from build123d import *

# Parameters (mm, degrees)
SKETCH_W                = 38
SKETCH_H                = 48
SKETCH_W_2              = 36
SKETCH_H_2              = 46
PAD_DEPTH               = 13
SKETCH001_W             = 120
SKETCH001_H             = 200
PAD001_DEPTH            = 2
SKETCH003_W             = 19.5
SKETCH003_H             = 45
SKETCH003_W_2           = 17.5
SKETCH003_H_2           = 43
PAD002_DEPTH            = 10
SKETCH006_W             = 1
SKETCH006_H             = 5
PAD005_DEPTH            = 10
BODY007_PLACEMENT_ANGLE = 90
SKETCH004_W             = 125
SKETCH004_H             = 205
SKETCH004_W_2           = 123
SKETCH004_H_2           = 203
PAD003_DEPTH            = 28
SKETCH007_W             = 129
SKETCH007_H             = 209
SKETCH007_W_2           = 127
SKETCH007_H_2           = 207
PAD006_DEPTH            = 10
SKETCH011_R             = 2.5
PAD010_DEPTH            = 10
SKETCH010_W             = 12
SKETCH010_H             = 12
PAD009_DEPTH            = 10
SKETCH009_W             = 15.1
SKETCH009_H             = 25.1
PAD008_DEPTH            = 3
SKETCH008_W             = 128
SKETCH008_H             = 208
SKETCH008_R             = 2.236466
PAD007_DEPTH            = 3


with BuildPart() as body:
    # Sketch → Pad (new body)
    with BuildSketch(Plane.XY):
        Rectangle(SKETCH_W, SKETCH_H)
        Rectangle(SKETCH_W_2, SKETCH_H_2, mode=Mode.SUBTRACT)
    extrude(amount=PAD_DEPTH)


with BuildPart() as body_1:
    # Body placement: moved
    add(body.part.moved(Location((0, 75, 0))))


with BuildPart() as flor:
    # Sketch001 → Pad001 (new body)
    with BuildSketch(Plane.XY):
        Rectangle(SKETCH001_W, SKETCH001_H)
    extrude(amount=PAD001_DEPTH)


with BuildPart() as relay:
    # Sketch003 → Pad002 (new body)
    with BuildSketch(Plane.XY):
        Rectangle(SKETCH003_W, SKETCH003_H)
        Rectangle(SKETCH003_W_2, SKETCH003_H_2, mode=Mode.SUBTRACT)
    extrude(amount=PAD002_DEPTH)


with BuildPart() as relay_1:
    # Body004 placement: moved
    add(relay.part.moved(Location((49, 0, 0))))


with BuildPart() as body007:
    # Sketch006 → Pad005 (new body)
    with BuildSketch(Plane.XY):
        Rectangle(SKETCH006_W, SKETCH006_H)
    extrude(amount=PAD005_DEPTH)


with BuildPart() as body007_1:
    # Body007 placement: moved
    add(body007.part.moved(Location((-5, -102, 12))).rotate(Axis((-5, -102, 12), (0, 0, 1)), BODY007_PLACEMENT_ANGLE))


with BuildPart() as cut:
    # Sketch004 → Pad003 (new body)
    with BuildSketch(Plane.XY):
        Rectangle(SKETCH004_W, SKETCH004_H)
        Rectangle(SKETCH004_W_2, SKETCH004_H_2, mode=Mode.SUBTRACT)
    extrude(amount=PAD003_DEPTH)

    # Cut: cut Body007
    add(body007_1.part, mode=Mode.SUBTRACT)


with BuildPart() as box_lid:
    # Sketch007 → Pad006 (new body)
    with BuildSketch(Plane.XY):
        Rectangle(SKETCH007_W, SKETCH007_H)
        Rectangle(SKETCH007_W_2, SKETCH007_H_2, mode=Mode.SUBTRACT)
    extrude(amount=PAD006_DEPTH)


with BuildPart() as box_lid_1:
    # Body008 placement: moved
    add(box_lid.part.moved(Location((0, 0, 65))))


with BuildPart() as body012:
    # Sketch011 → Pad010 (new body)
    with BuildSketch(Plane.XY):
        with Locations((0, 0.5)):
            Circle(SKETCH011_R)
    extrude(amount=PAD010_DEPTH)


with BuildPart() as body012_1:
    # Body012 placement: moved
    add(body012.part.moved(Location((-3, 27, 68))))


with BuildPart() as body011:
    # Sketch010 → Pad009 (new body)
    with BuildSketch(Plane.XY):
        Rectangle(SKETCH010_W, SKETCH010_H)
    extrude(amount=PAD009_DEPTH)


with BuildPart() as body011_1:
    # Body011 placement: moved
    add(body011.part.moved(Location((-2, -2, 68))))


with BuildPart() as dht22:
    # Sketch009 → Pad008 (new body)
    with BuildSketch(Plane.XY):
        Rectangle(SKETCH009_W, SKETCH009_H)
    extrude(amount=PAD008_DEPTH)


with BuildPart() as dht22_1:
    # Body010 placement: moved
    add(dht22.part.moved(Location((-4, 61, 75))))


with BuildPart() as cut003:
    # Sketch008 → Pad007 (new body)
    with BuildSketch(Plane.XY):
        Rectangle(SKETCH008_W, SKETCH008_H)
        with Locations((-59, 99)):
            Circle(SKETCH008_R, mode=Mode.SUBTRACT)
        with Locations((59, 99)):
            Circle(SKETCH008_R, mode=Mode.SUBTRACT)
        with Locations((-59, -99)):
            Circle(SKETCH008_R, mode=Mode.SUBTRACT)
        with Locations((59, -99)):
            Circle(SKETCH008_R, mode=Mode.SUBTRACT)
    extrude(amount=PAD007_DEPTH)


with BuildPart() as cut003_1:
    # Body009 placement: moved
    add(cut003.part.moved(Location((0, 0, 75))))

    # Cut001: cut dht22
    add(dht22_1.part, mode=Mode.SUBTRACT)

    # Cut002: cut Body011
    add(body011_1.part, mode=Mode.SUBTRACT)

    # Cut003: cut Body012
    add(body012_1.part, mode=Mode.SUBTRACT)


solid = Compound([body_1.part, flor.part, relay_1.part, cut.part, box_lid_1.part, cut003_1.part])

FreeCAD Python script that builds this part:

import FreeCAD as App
import Part
import Sketcher
from FreeCAD import Vector

doc = App.newDocument("Part")
params = doc.addObject("Spreadsheet::Sheet", "Params")
for row, (alias, value) in enumerate([
    ("sketch1_width", "38 mm"),
    ("sketch1_width2", "36 mm"),
    ("sketch1_height", "48 mm"),
    ("sketch1_height2", "46 mm"),
    ("pad1_length", "13 mm"),
    ("sketch2_width", "120 mm"),
    ("sketch2_height", "200 mm"),
    ("pad2_length", "2 mm"),
    ("sketch3_height", "45 mm"),
    ("sketch3_height2", "43 mm"),
    ("sketch3_width", "19.5 mm"),
    ("sketch3_width2", "17.5 mm"),
    ("pad3_length", "10 mm"),
    ("sketch4_width", "1 mm"),
    ("sketch4_height", "5 mm"),
    ("pad4_length", "10 mm"),
    ("sketch5_width", "125 mm"),
    ("sketch5_width2", "123 mm"),
    ("sketch5_height", "205 mm"),
    ("sketch5_height2", "203 mm"),
    ("pad5_length", "28 mm"),
    ("sketch6_width", "129 mm"),
    ("sketch6_width2", "127 mm"),
    ("sketch6_height", "209 mm"),
    ("sketch6_height2", "207 mm"),
    ("pad6_length", "10 mm"),
    ("sketch7_diameter", "5 mm"),
    ("pad7_length", "10 mm"),
    ("sketch8_width", "12 mm"),
    ("pad8_length", "10 mm"),
    ("sketch9_width", "15.1 mm"),
    ("sketch9_height", "25.1 mm"),
    ("pad9_length", "3 mm"),
    ("sketch10_width", "128 mm"),
    ("sketch10_height", "208 mm"),
    ("pad10_length", "3 mm"),
], start=1):
    params.set(f"A{row}", alias)
    params.set(f"B{row}", "=" + value)
    params.setAlias(f"B{row}", alias)

body = doc.addObject("PartDesign::Body", "Body")

sketch1 = body.newObject("Sketcher::SketchObject", "Sketch")
sketch1.AttachmentSupport = (doc.getObject("XY_Plane"), [""])
sketch1.MapMode = "FlatFace"
sketch1.addGeometry([
    Part.LineSegment(Vector(-19, 24, 0), Vector(-19, -24, 0)),
    Part.LineSegment(Vector(-19, -24, 0), Vector(19, -24, 0)),
    Part.LineSegment(Vector(19, -24, 0), Vector(19, 24, 0)),
    Part.LineSegment(Vector(19, 24, 0), Vector(-19, 24, 0)),
    Part.LineSegment(Vector(18, -23, 0), Vector(-18, -23, 0)),
    Part.LineSegment(Vector(-18, -23, 0), Vector(-18, 23, 0)),
    Part.LineSegment(Vector(-18, 23, 0), Vector(18, 23, 0)),
    Part.LineSegment(Vector(18, 23, 0), Vector(18, -23, 0)),
], False)
sketch1.addConstraint([
    Sketcher.Constraint("Coincident", 0, 2, 1, 1),
    Sketcher.Constraint("Coincident", 1, 2, 2, 1),
    Sketcher.Constraint("Coincident", 2, 2, 3, 1),
    Sketcher.Constraint("Coincident", 3, 2, 0, 1),
    Sketcher.Constraint("Coincident", 4, 2, 5, 1),
    Sketcher.Constraint("Coincident", 5, 2, 6, 1),
    Sketcher.Constraint("Coincident", 6, 2, 7, 1),
    Sketcher.Constraint("Coincident", 7, 2, 4, 1),
    Sketcher.Constraint("Vertical", 0),
    Sketcher.Constraint("Horizontal", 1),
    Sketcher.Constraint("Vertical", 2),
    Sketcher.Constraint("Horizontal", 3),
    Sketcher.Constraint("Horizontal", 4),
    Sketcher.Constraint("Vertical", 5),
    Sketcher.Constraint("Horizontal", 6),
    Sketcher.Constraint("Vertical", 7),
    Sketcher.Constraint("Symmetric", 0, 2, 2, 2, -1, 1),
    Sketcher.Constraint("Symmetric", 4, 2, 6, 2, -1, 1),
    Sketcher.Constraint("DistanceX", 1, 1, 1, 2, 38.0),
    Sketcher.Constraint("DistanceX", 4, 2, 4, 1, 36.0),
    Sketcher.Constraint("DistanceY", 0, 2, 0, 1, 48.0),
    Sketcher.Constraint("DistanceY", 5, 1, 5, 2, 46.0),
])
sketch1.setExpression("Constraints[18]", "Params.sketch1_width")
sketch1.setExpression("Constraints[19]", "Params.sketch1_width2")
sketch1.setExpression("Constraints[20]", "Params.sketch1_height")
sketch1.setExpression("Constraints[21]", "Params.sketch1_height2")
pad1 = body.newObject("PartDesign::Pad", "Pad")
pad1.Profile = sketch1
pad1.setExpression("Length", "Params.pad1_length")
body2 = doc.addObject("PartDesign::Body", "Body001")
doc.recompute()

body.Placement = App.Placement(Vector(0, 75, 0), App.Rotation(Vector(0, 0, 1), 0))
boolean = body2.newObject("PartDesign::Boolean", "Boolean")
boolean.Type = "Fuse"
boolean.addObjects([body])
body3 = doc.addObject("PartDesign::Body", "Body002")

sketch2 = body3.newObject("Sketcher::SketchObject", "Sketch001")
sketch2.AttachmentSupport = (doc.getObject("XY_Plane002"), [""])
sketch2.MapMode = "FlatFace"
sketch2.addGeometry([
    Part.LineSegment(Vector(-60, 100, 0), Vector(-60, -100, 0)),
    Part.LineSegment(Vector(-60, -100, 0), Vector(60, -100, 0)),
    Part.LineSegment(Vector(60, -100, 0), Vector(60, 100, 0)),
    Part.LineSegment(Vector(60, 100, 0), Vector(-60, 100, 0)),
], False)
sketch2.addConstraint([
    Sketcher.Constraint("Coincident", 0, 2, 1, 1),
    Sketcher.Constraint("Coincident", 1, 2, 2, 1),
    Sketcher.Constraint("Coincident", 2, 2, 3, 1),
    Sketcher.Constraint("Coincident", 3, 2, 0, 1),
    Sketcher.Constraint("Vertical", 0),
    Sketcher.Constraint("Horizontal", 1),
    Sketcher.Constraint("Vertical", 2),
    Sketcher.Constraint("Horizontal", 3),
    Sketcher.Constraint("Symmetric", 0, 2, 2, 2, -1, 1),
    Sketcher.Constraint("DistanceX", 1, 1, 1, 2, 120.0),
    Sketcher.Constraint("DistanceY", 0, 2, 0, 1, 200.0),
])
sketch2.setExpression("Constraints[9]", "Params.sketch2_width")
sketch2.setExpression("Constraints[10]", "Params.sketch2_height")
pad2 = body3.newObject("PartDesign::Pad", "Pad001")
pad2.Profile = sketch2
pad2.setExpression("Length", "Params.pad2_length")
body4 = doc.addObject("PartDesign::Body", "Body003")

sketch3 = body4.newObject("Sketcher::SketchObject", "Sketch002")
sketch3.AttachmentSupport = (doc.getObject("XY_Plane003"), [""])
sketch3.MapMode = "FlatFace"
sketch3.addGeometry([
    Part.LineSegment(Vector(-9.75, 22.5, 0), Vector(-9.75, -22.5, 0)),
    Part.LineSegment(Vector(-9.75, -22.5, 0), Vector(9.75, -22.5, 0)),
    Part.LineSegment(Vector(9.75, -22.5, 0), Vector(9.75, 22.5, 0)),
    Part.LineSegment(Vector(9.75, 22.5, 0), Vector(-9.75, 22.5, 0)),
    Part.LineSegment(Vector(8.75, -21.5, 0), Vector(-8.75, -21.5, 0)),
    Part.LineSegment(Vector(-8.75, -21.5, 0), Vector(-8.75, 21.5, 0)),
    Part.LineSegment(Vector(-8.75, 21.5, 0), Vector(8.75, 21.5, 0)),
    Part.LineSegment(Vector(8.75, 21.5, 0), Vector(8.75, -21.5, 0)),
], False)
sketch3.addConstraint([
    Sketcher.Constraint("Coincident", 0, 2, 1, 1),
    Sketcher.Constraint("Coincident", 1, 2, 2, 1),
    Sketcher.Constraint("Coincident", 2, 2, 3, 1),
    Sketcher.Constraint("Coincident", 3, 2, 0, 1),
    Sketcher.Constraint("Coincident", 4, 2, 5, 1),
    Sketcher.Constraint("Coincident", 5, 2, 6, 1),
    Sketcher.Constraint("Coincident", 6, 2, 7, 1),
    Sketcher.Constraint("Coincident", 7, 2, 4, 1),
    Sketcher.Constraint("Vertical", 0),
    Sketcher.Constraint("Horizontal", 1),
    Sketcher.Constraint("Vertical", 2),
    Sketcher.Constraint("Horizontal", 3),
    Sketcher.Constraint("Horizontal", 4),
    Sketcher.Constraint("Vertical", 5),
    Sketcher.Constraint("Horizontal", 6),
    Sketcher.Constraint("Vertical", 7),
    Sketcher.Constraint("Symmetric", 0, 2, 2, 2, -1, 1),
    Sketcher.Constraint("Symmetric", 4, 2, 6, 2, -1, 1),
    Sketcher.Constraint("DistanceY", 0, 2, 0, 1, 45.0),
    Sketcher.Constraint("DistanceY", 5, 1, 5, 2, 43.0),
    Sketcher.Constraint("DistanceX", 1, 1, 1, 2, 19.5),
    Sketcher.Constraint("DistanceX", 4, 2, 4, 1, 17.5),
])
sketch3.setExpression("Constraints[18]", "Params.sketch3_height")
sketch3.setExpression("Constraints[19]", "Params.sketch3_height2")
sketch3.setExpression("Constraints[20]", "Params.sketch3_width")
sketch3.setExpression("Constraints[21]", "Params.sketch3_width2")
pad3 = body4.newObject("PartDesign::Pad", "Pad002")
pad3.Profile = sketch3
pad3.setExpression("Length", "Params.pad3_length")
body5 = doc.addObject("PartDesign::Body", "Body004")
doc.recompute()

body4.Placement = App.Placement(Vector(49, 0, 0), App.Rotation(Vector(0, 0, 1), 0))
boolean2 = body5.newObject("PartDesign::Boolean", "Boolean001")
boolean2.Type = "Fuse"
boolean2.addObjects([body4])
body6 = doc.addObject("PartDesign::Body", "Body005")

sketch4 = body6.newObject("Sketcher::SketchObject", "Sketch003")
sketch4.AttachmentSupport = (doc.getObject("XY_Plane005"), [""])
sketch4.MapMode = "FlatFace"
sketch4.addGeometry([
    Part.LineSegment(Vector(-0.5, 2.5, 0), Vector(-0.5, -2.5, 0)),
    Part.LineSegment(Vector(-0.5, -2.5, 0), Vector(0.5, -2.5, 0)),
    Part.LineSegment(Vector(0.5, -2.5, 0), Vector(0.5, 2.5, 0)),
    Part.LineSegment(Vector(0.5, 2.5, 0), Vector(-0.5, 2.5, 0)),
], False)
sketch4.addConstraint([
    Sketcher.Constraint("Coincident", 0, 2, 1, 1),
    Sketcher.Constraint("Coincident", 1, 2, 2, 1),
    Sketcher.Constraint("Coincident", 2, 2, 3, 1),
    Sketcher.Constraint("Coincident", 3, 2, 0, 1),
    Sketcher.Constraint("Vertical", 0),
    Sketcher.Constraint("Horizontal", 1),
    Sketcher.Constraint("Vertical", 2),
    Sketcher.Constraint("Horizontal", 3),
    Sketcher.Constraint("Symmetric", 0, 2, 2, 2, -1, 1),
    Sketcher.Constraint("DistanceX", 1, 1, 1, 2, 1.0),
    Sketcher.Constraint("DistanceY", 0, 2, 0, 1, 5.0),
])
sketch4.setExpression("Constraints[9]", "Params.sketch4_width")
sketch4.setExpression("Constraints[10]", "Params.sketch4_height")
pad4 = body6.newObject("PartDesign::Pad", "Pad003")
pad4.Profile = sketch4
pad4.setExpression("Length", "Params.pad4_length")
body7 = doc.addObject("PartDesign::Body", "Body006")
doc.recompute()

body6.Placement = App.Placement(Vector(-5, -102, 12), App.Rotation(Vector(0, 0, 1), 90))
boolean3 = body7.newObject("PartDesign::Boolean", "Boolean002")
boolean3.Type = "Fuse"
boolean3.addObjects([body6])
body8 = doc.addObject("PartDesign::Body", "Body007")

sketch5 = body8.newObject("Sketcher::SketchObject", "Sketch004")
sketch5.AttachmentSupport = (doc.getObject("XY_Plane007"), [""])
sketch5.MapMode = "FlatFace"
sketch5.addGeometry([
    Part.LineSegment(Vector(-62.5, 102.5, 0), Vector(-62.5, -102.5, 0)),
    Part.LineSegment(Vector(-62.5, -102.5, 0), Vector(62.5, -102.5, 0)),
    Part.LineSegment(Vector(62.5, -102.5, 0), Vector(62.5, 102.5, 0)),
    Part.LineSegment(Vector(62.5, 102.5, 0), Vector(-62.5, 102.5, 0)),
    Part.LineSegment(Vector(61.5, -101.5, 0), Vector(-61.5, -101.5, 0)),
    Part.LineSegment(Vector(-61.5, -101.5, 0), Vector(-61.5, 101.5, 0)),
    Part.LineSegment(Vector(-61.5, 101.5, 0), Vector(61.5, 101.5, 0)),
    Part.LineSegment(Vector(61.5, 101.5, 0), Vector(61.5, -101.5, 0)),
], False)
sketch5.addConstraint([
    Sketcher.Constraint("Coincident", 0, 2, 1, 1),
    Sketcher.Constraint("Coincident", 1, 2, 2, 1),
    Sketcher.Constraint("Coincident", 2, 2, 3, 1),
    Sketcher.Constraint("Coincident", 3, 2, 0, 1),
    Sketcher.Constraint("Coincident", 4, 2, 5, 1),
    Sketcher.Constraint("Coincident", 5, 2, 6, 1),
    Sketcher.Constraint("Coincident", 6, 2, 7, 1),
    Sketcher.Constraint("Coincident", 7, 2, 4, 1),
    Sketcher.Constraint("Vertical", 0),
    Sketcher.Constraint("Horizontal", 1),
    Sketcher.Constraint("Vertical", 2),
    Sketcher.Constraint("Horizontal", 3),
    Sketcher.Constraint("Horizontal", 4),
    Sketcher.Constraint("Vertical", 5),
    Sketcher.Constraint("Horizontal", 6),
    Sketcher.Constraint("Vertical", 7),
    Sketcher.Constraint("Symmetric", 0, 2, 2, 2, -1, 1),
    Sketcher.Constraint("Symmetric", 4, 2, 6, 2, -1, 1),
    Sketcher.Constraint("DistanceX", 1, 1, 1, 2, 125.0),
    Sketcher.Constraint("DistanceX", 4, 2, 4, 1, 123.0),
    Sketcher.Constraint("DistanceY", 0, 2, 0, 1, 205.0),
    Sketcher.Constraint("DistanceY", 5, 1, 5, 2, 203.0),
])
sketch5.setExpression("Constraints[18]", "Params.sketch5_width")
sketch5.setExpression("Constraints[19]", "Params.sketch5_width2")
sketch5.setExpression("Constraints[20]", "Params.sketch5_height")
sketch5.setExpression("Constraints[21]", "Params.sketch5_height2")
pad5 = body8.newObject("PartDesign::Pad", "Pad004")
pad5.Profile = sketch5
pad5.setExpression("Length", "Params.pad5_length")
doc.recompute()

boolean4 = body8.newObject("PartDesign::Boolean", "Boolean003")
boolean4.Type = "Cut"
boolean4.addObjects([body7])
body9 = doc.addObject("PartDesign::Body", "Body008")

sketch6 = body9.newObject("Sketcher::SketchObject", "Sketch005")
sketch6.AttachmentSupport = (doc.getObject("XY_Plane008"), [""])
sketch6.MapMode = "FlatFace"
sketch6.addGeometry([
    Part.LineSegment(Vector(-64.5, 104.5, 0), Vector(-64.5, -104.5, 0)),
    Part.LineSegment(Vector(-64.5, -104.5, 0), Vector(64.5, -104.5, 0)),
    Part.LineSegment(Vector(64.5, -104.5, 0), Vector(64.5, 104.5, 0)),
    Part.LineSegment(Vector(64.5, 104.5, 0), Vector(-64.5, 104.5, 0)),
    Part.LineSegment(Vector(63.5, -103.5, 0), Vector(-63.5, -103.5, 0)),
    Part.LineSegment(Vector(-63.5, -103.5, 0), Vector(-63.5, 103.5, 0)),
    Part.LineSegment(Vector(-63.5, 103.5, 0), Vector(63.5, 103.5, 0)),
    Part.LineSegment(Vector(63.5, 103.5, 0), Vector(63.5, -103.5, 0)),
], False)
sketch6.addConstraint([
    Sketcher.Constraint("Coincident", 0, 2, 1, 1),
    Sketcher.Constraint("Coincident", 1, 2, 2, 1),
    Sketcher.Constraint("Coincident", 2, 2, 3, 1),
    Sketcher.Constraint("Coincident", 3, 2, 0, 1),
    Sketcher.Constraint("Coincident", 4, 2, 5, 1),
    Sketcher.Constraint("Coincident", 5, 2, 6, 1),
    Sketcher.Constraint("Coincident", 6, 2, 7, 1),
    Sketcher.Constraint("Coincident", 7, 2, 4, 1),
    Sketcher.Constraint("Vertical", 0),
    Sketcher.Constraint("Horizontal", 1),
    Sketcher.Constraint("Vertical", 2),
    Sketcher.Constraint("Horizontal", 3),
    Sketcher.Constraint("Horizontal", 4),
    Sketcher.Constraint("Vertical", 5),
    Sketcher.Constraint("Horizontal", 6),
    Sketcher.Constraint("Vertical", 7),
    Sketcher.Constraint("Symmetric", 0, 2, 2, 2, -1, 1),
    Sketcher.Constraint("Symmetric", 4, 2, 6, 2, -1, 1),
    Sketcher.Constraint("DistanceX", 1, 1, 1, 2, 129.0),
    Sketcher.Constraint("DistanceX", 4, 2, 4, 1, 127.0),
    Sketcher.Constraint("DistanceY", 0, 2, 0, 1, 209.0),
    Sketcher.Constraint("DistanceY", 5, 1, 5, 2, 207.0),
])
sketch6.setExpression("Constraints[18]", "Params.sketch6_width")
sketch6.setExpression("Constraints[19]", "Params.sketch6_width2")
sketch6.setExpression("Constraints[20]", "Params.sketch6_height")
sketch6.setExpression("Constraints[21]", "Params.sketch6_height2")
pad6 = body9.newObject("PartDesign::Pad", "Pad005")
pad6.Profile = sketch6
pad6.setExpression("Length", "Params.pad6_length")
body10 = doc.addObject("PartDesign::Body", "Body009")
doc.recompute()

body9.Placement = App.Placement(Vector(0, 0, 65), App.Rotation(Vector(0, 0, 1), 0))
boolean5 = body10.newObject("PartDesign::Boolean", "Boolean004")
boolean5.Type = "Fuse"
boolean5.addObjects([body9])
body11 = doc.addObject("PartDesign::Body", "Body010")

sketch7 = body11.newObject("Sketcher::SketchObject", "Sketch006")
sketch7.AttachmentSupport = (doc.getObject("XY_Plane010"), [""])
sketch7.MapMode = "FlatFace"
sketch7.addGeometry(Part.Circle(Vector(0, 0.5, 0), Vector(0, 0, 1), 2.5), False)
sketch7.addConstraint([
    Sketcher.Constraint("PointOnObject", 0, 3, -2),
    Sketcher.Constraint("Diameter", 0, 5.0),
    Sketcher.Constraint("DistanceY", -1, 1, 0, 3, 0.5),
])
sketch7.setExpression("Constraints[1]", "Params.sketch7_diameter")
pad7 = body11.newObject("PartDesign::Pad", "Pad006")
pad7.Profile = sketch7
pad7.setExpression("Length", "Params.pad7_length")
body12 = doc.addObject("PartDesign::Body", "Body011")
doc.recompute()

body11.Placement = App.Placement(Vector(-3, 27, 68), App.Rotation(Vector(0, 0, 1), 0))
boolean6 = body12.newObject("PartDesign::Boolean", "Boolean005")
boolean6.Type = "Fuse"
boolean6.addObjects([body11])
body13 = doc.addObject("PartDesign::Body", "Body012")

sketch8 = body13.newObject("Sketcher::SketchObject", "Sketch007")
sketch8.AttachmentSupport = (doc.getObject("XY_Plane012"), [""])
sketch8.MapMode = "FlatFace"
sketch8.addGeometry([
    Part.LineSegment(Vector(-6, 6, 0), Vector(-6, -6, 0)),
    Part.LineSegment(Vector(-6, -6, 0), Vector(6, -6, 0)),
    Part.LineSegment(Vector(6, -6, 0), Vector(6, 6, 0)),
    Part.LineSegment(Vector(6, 6, 0), Vector(-6, 6, 0)),
], False)
sketch8.addConstraint([
    Sketcher.Constraint("Coincident", 0, 2, 1, 1),
    Sketcher.Constraint("Coincident", 1, 2, 2, 1),
    Sketcher.Constraint("Coincident", 2, 2, 3, 1),
    Sketcher.Constraint("Coincident", 3, 2, 0, 1),
    Sketcher.Constraint("Vertical", 0),
    Sketcher.Constraint("Horizontal", 1),
    Sketcher.Constraint("Vertical", 2),
    Sketcher.Constraint("Horizontal", 3),
    Sketcher.Constraint("Symmetric", 0, 2, 2, 2, -1, 1),
    Sketcher.Constraint("Equal", 3, 0),
    Sketcher.Constraint("DistanceX", 1, 1, 1, 2, 12.0),
])
sketch8.setExpression("Constraints[10]", "Params.sketch8_width")
pad8 = body13.newObject("PartDesign::Pad", "Pad007")
pad8.Profile = sketch8
pad8.setExpression("Length", "Params.pad8_length")
body14 = doc.addObject("PartDesign::Body", "Body013")
doc.recompute()

body13.Placement = App.Placement(Vector(-2, -2, 68), App.Rotation(Vector(0, 0, 1), 0))
boolean7 = body14.newObject("PartDesign::Boolean", "Boolean006")
boolean7.Type = "Fuse"
boolean7.addObjects([body13])
body15 = doc.addObject("PartDesign::Body", "Body014")

sketch9 = body15.newObject("Sketcher::SketchObject", "Sketch008")
sketch9.AttachmentSupport = (doc.getObject("XY_Plane014"), [""])
sketch9.MapMode = "FlatFace"
sketch9.addGeometry([
    Part.LineSegment(Vector(-7.55, 12.55, 0), Vector(-7.55, -12.55, 0)),
    Part.LineSegment(Vector(-7.55, -12.55, 0), Vector(7.55, -12.55, 0)),
    Part.LineSegment(Vector(7.55, -12.55, 0), Vector(7.55, 12.55, 0)),
    Part.LineSegment(Vector(7.55, 12.55, 0), Vector(-7.55, 12.55, 0)),
], False)
sketch9.addConstraint([
    Sketcher.Constraint("Coincident", 0, 2, 1, 1),
    Sketcher.Constraint("Coincident", 1, 2, 2, 1),
    Sketcher.Constraint("Coincident", 2, 2, 3, 1),
    Sketcher.Constraint("Coincident", 3, 2, 0, 1),
    Sketcher.Constraint("Vertical", 0),
    Sketcher.Constraint("Horizontal", 1),
    Sketcher.Constraint("Vertical", 2),
    Sketcher.Constraint("Horizontal", 3),
    Sketcher.Constraint("Symmetric", 0, 2, 2, 2, -1, 1),
    Sketcher.Constraint("DistanceX", 1, 1, 1, 2, 15.1),
    Sketcher.Constraint("DistanceY", 0, 2, 0, 1, 25.1),
])
sketch9.setExpression("Constraints[9]", "Params.sketch9_width")
sketch9.setExpression("Constraints[10]", "Params.sketch9_height")
pad9 = body15.newObject("PartDesign::Pad", "Pad008")
pad9.Profile = sketch9
pad9.setExpression("Length", "Params.pad9_length")
body16 = doc.addObject("PartDesign::Body", "Body015")
doc.recompute()

body15.Placement = App.Placement(Vector(-4, 61, 75), App.Rotation(Vector(0, 0, 1), 0))
boolean8 = body16.newObject("PartDesign::Boolean", "Boolean007")
boolean8.Type = "Fuse"
boolean8.addObjects([body15])
body17 = doc.addObject("PartDesign::Body", "Body016")

sketch10 = body17.newObject("Sketcher::SketchObject", "Sketch009")
sketch10.AttachmentSupport = (doc.getObject("XY_Plane016"), [""])
sketch10.MapMode = "FlatFace"
sketch10.addGeometry([
    Part.LineSegment(Vector(-64, 104, 0), Vector(-64, -104, 0)),
    Part.LineSegment(Vector(-64, -104, 0), Vector(64, -104, 0)),
    Part.LineSegment(Vector(64, -104, 0), Vector(64, 104, 0)),
    Part.LineSegment(Vector(64, 104, 0), Vector(-64, 104, 0)),
    Part.Circle(Vector(-59, -99, 0), Vector(0, 0, 1), 2.236466),
    Part.Circle(Vector(59, -99, 0), Vector(0, 0, 1), 2.236466),
    Part.Circle(Vector(-59, 99, 0), Vector(0, 0, 1), 2.236466),
    Part.Circle(Vector(59, 99, 0), Vector(0, 0, 1), 2.236466),
], False)
sketch10.addConstraint([
    Sketcher.Constraint("Coincident", 0, 2, 1, 1),
    Sketcher.Constraint("Coincident", 1, 2, 2, 1),
    Sketcher.Constraint("Coincident", 2, 2, 3, 1),
    Sketcher.Constraint("Coincident", 3, 2, 0, 1),
    Sketcher.Constraint("Vertical", 0),
    Sketcher.Constraint("Horizontal", 1),
    Sketcher.Constraint("Vertical", 2),
    Sketcher.Constraint("Horizontal", 3),
    Sketcher.Constraint("Equal", 4, 5),
    Sketcher.Constraint("Equal", 5, 6),
    Sketcher.Constraint("Equal", 6, 7),
    Sketcher.Constraint("Symmetric", 5, 3, 6, 3, -1, 1),
    Sketcher.Constraint("Symmetric", 4, 3, 7, 3, -1, 1),
    Sketcher.Constraint("Symmetric", 0, 2, 2, 2, -1, 1),
    Sketcher.Constraint("Symmetric", 4, 3, 5, 3, -2),
    Sketcher.Constraint("DistanceX", 1, 1, 1, 2, 128.0),
    Sketcher.Constraint("DistanceY", 0, 2, 0, 1, 208.0),
    Sketcher.Constraint("DistanceX", 4, 3, -1, 1, 59.0),
    Sketcher.Constraint("DistanceY", 4, 3, -1, 1, 99.0),
    Sketcher.Constraint("Diameter", 4, 4.472932),
])
sketch10.setExpression("Constraints[15]", "Params.sketch10_width")
sketch10.setExpression("Constraints[16]", "Params.sketch10_height")
pad10 = body17.newObject("PartDesign::Pad", "Pad009")
pad10.Profile = sketch10
pad10.setExpression("Length", "Params.pad10_length")
body18 = doc.addObject("PartDesign::Body", "Body017")
doc.recompute()

body17.Placement = App.Placement(Vector(0, 0, 75), App.Rotation(Vector(0, 0, 1), 0))
boolean9 = body18.newObject("PartDesign::Boolean", "Boolean008")
boolean9.Type = "Fuse"
boolean9.addObjects([body17])
doc.recompute()

boolean10 = body18.newObject("PartDesign::Boolean", "Boolean009")
boolean10.Type = "Cut"
boolean10.addObjects([body16])
doc.recompute()

boolean11 = body18.newObject("PartDesign::Boolean", "Boolean010")
boolean11.Type = "Cut"
boolean11.addObjects([body14])
doc.recompute()

boolean12 = body18.newObject("PartDesign::Boolean", "Boolean011")
boolean12.Type = "Cut"
boolean12.addObjects([body12])

doc.recompute()
